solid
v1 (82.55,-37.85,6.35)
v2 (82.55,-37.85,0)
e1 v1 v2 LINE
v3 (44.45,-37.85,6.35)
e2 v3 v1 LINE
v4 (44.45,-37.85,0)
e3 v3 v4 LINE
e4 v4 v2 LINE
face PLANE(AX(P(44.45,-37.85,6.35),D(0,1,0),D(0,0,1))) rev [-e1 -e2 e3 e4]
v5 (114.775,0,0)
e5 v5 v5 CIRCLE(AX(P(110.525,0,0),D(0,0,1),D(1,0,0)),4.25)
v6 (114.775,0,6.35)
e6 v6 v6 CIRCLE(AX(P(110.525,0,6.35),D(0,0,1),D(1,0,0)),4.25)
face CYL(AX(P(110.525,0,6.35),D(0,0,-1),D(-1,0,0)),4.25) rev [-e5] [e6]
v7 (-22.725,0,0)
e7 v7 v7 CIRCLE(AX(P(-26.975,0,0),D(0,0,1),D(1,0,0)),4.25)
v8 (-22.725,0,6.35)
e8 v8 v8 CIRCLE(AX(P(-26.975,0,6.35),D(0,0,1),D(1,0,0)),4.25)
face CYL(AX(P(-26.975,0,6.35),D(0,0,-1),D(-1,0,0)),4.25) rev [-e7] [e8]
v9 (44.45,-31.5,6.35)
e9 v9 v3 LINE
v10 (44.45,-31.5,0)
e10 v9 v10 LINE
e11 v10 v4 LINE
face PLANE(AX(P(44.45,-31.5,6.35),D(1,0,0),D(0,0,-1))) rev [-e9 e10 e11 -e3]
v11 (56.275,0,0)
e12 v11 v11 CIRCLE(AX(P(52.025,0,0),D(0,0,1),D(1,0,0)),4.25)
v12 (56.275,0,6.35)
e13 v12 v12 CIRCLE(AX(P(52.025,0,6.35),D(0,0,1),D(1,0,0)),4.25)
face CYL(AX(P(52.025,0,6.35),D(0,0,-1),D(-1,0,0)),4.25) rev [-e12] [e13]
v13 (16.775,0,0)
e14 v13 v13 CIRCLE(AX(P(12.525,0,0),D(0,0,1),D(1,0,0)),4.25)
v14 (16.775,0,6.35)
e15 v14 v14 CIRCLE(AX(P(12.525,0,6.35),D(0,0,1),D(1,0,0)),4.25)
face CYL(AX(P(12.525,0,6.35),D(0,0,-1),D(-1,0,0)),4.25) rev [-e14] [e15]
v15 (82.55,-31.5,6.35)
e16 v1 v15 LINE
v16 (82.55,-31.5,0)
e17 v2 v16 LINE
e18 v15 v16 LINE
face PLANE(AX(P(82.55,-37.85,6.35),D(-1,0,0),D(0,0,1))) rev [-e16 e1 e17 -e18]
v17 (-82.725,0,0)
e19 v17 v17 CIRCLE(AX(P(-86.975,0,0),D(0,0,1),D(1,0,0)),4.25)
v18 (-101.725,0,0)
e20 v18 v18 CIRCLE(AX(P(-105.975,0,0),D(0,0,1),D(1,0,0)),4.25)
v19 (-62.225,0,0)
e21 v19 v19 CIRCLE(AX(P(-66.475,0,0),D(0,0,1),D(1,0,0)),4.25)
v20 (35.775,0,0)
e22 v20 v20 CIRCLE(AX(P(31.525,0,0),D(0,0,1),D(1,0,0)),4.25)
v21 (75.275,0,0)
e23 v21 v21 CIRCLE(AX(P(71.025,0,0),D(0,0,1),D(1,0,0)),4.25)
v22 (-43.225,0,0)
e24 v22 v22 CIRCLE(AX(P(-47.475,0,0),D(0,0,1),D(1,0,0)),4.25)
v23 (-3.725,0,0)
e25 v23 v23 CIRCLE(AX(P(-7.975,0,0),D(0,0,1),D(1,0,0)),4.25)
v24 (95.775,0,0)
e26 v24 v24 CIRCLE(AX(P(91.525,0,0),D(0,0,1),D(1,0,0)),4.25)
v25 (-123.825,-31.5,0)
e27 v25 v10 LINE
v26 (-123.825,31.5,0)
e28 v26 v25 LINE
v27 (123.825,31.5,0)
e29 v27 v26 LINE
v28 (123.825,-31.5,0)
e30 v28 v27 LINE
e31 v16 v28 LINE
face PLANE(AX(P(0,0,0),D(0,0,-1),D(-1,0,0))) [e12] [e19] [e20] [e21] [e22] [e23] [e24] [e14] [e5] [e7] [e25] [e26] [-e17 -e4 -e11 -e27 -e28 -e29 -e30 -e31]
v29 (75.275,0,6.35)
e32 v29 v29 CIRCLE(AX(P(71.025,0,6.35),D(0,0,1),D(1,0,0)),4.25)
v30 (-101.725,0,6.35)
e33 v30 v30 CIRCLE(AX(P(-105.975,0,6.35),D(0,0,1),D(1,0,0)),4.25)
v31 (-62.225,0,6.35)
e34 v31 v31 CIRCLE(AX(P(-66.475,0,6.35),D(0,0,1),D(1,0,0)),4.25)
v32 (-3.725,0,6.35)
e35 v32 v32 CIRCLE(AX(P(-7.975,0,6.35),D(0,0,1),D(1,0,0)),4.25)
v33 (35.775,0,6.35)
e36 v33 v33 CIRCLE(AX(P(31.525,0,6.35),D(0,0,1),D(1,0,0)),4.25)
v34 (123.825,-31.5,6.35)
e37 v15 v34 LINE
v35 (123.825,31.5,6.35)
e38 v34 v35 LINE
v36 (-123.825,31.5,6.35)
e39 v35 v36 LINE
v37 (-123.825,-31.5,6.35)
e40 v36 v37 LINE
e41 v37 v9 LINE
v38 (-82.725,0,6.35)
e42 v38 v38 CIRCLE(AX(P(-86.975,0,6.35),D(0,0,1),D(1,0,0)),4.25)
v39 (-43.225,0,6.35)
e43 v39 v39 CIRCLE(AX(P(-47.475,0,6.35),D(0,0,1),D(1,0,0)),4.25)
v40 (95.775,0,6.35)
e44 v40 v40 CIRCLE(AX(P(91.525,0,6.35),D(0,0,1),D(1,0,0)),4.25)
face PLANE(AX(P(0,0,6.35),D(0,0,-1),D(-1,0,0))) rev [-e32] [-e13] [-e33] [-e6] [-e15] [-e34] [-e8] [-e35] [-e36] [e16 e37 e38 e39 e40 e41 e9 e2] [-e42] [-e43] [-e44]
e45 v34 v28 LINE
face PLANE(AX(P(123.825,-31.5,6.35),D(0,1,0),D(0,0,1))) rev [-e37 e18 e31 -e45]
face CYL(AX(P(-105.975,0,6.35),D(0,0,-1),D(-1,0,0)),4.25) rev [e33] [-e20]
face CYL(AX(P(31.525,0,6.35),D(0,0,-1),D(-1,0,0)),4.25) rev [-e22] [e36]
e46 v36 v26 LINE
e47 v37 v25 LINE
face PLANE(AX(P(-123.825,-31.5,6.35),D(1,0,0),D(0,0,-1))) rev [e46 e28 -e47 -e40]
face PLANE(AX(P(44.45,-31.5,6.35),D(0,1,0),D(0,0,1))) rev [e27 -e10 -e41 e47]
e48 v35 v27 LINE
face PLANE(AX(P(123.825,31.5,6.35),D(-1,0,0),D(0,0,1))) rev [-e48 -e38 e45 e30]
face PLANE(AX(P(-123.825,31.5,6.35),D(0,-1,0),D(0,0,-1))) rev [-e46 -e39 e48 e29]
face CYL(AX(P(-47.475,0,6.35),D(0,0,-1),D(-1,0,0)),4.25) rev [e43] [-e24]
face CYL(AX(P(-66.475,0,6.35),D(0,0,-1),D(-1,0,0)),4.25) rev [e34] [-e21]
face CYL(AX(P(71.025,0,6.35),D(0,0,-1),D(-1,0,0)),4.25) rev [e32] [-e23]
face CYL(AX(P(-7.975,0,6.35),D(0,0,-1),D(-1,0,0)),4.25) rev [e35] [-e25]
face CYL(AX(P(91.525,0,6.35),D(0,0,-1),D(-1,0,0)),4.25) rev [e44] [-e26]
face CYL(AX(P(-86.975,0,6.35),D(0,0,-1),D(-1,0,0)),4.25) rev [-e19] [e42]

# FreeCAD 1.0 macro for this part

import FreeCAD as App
import Part
import Sketcher
from FreeCAD import Vector
Q = App.Units.Quantity


def add_polygon(sketch, points):
    """Adds a closed chain of lines whose ends are joined by coincident constraints."""
    first, n = sketch.GeometryCount, len(points)
    for a, b in zip(points, points[1:] + points[:1]):
        sketch.addGeometry(Part.LineSegment(App.Vector(*a, 0), App.Vector(*b, 0)), False)
    for i in range(n):
        sketch.addConstraint(Sketcher.Constraint("Coincident", first + i, 2, first + (i + 1) % n, 1))

doc = App.newDocument("Part")
params = doc.addObject("Spreadsheet::Sheet", "Params")
for row, (alias, value) in enumerate([
    ("sketch1_width", "1.5 in"),
    ("sketch1_width2", "9.75 in"),
    ("sketch1_height", "0.25 in"),
    ("sketch1_width3", "6.625 in"),
    ("pad1_length", "0.25 in"),
], start=1):
    params.set(f"A{row}", alias)
    params.set(f"B{row}", "=" + value)
    params.setAlias(f"B{row}", alias)

body = doc.addObject("PartDesign::Body", "Body")

# Sketch on XY plane
sketch1 = body.newObject("Sketcher::SketchObject", "Sketch")
sketch1.AttachmentSupport = (doc.getObject("XY_Plane"), [""])
sketch1.MapMode = "FlatFace"
add_polygon(sketch1, [(123.825, -31.5), (123.825, 31.5), (-123.825, 31.5), (-123.825, -31.5), (44.45, -31.5), (44.45, -37.85), (82.55, -37.85), (82.55, -31.5)])  # lines 0-7
sketch1.addGeometry(Part.Circle(Vector(110.525, 0, 0), Vector(0, 0, 1), 4.25), False)  # 8
sketch1.addGeometry(Part.Circle(Vector(91.525, 0, 0), Vector(0, 0, 1), 4.25), False)  # 9
sketch1.addGeometry(Part.Circle(Vector(71.025, 0, 0), Vector(0, 0, 1), 4.25), False)  # 10
sketch1.addGeometry(Part.Circle(Vector(52.025, 0, 0), Vector(0, 0, 1), 4.25), False)  # 11
sketch1.addGeometry(Part.Circle(Vector(31.525, 0, 0), Vector(0, 0, 1), 4.25), False)  # 12
sketch1.addGeometry(Part.Circle(Vector(12.525, 0, 0), Vector(0, 0, 1), 4.25), False)  # 13
sketch1.addGeometry(Part.Circle(Vector(-7.975, 0, 0), Vector(0, 0, 1), 4.25), False)  # 14
sketch1.addGeometry(Part.Circle(Vector(-26.975, 0, 0), Vector(0, 0, 1), 4.25), False)  # 15
sketch1.addGeometry(Part.Circle(Vector(-47.475, 0, 0), Vector(0, 0, 1), 4.25), False)  # 16
sketch1.addGeometry(Part.Circle(Vector(-66.475, 0, 0), Vector(0, 0, 1), 4.25), False)  # 17
sketch1.addGeometry(Part.Circle(Vector(-86.975, 0, 0), Vector(0, 0, 1), 4.25), False)  # 18
sketch1.addGeometry(Part.Circle(Vector(-105.975, 0, 0), Vector(0, 0, 1), 4.25), False)  # 19
sketch1.addConstraint(Sketcher.Constraint("Vertical", 0))
sketch1.addConstraint(Sketcher.Constraint("Horizontal", 1))
sketch1.addConstraint(Sketcher.Constraint("Vertical", 2))
sketch1.addConstraint(Sketcher.Constraint("Horizontal", 3))
sketch1.addConstraint(Sketcher.Constraint("Vertical", 4))
sketch1.addConstraint(Sketcher.Constraint("Horizontal", 5))
sketch1.addConstraint(Sketcher.Constraint("Vertical", 6))
sketch1.addConstraint(Sketcher.Constraint("Horizontal", 7))
sketch1.addConstraint(Sketcher.Constraint("Equal", 8, 9))
sketch1.addConstraint(Sketcher.Constraint("Equal", 9, 10))
sketch1.addConstraint(Sketcher.Constraint("Equal", 10, 11))
sketch1.addConstraint(Sketcher.Constraint("Equal", 11, 12))
sketch1.addConstraint(Sketcher.Constraint("Equal", 12, 13))
sketch1.addConstraint(Sketcher.Constraint("Equal", 13, 14))
sketch1.addConstraint(Sketcher.Constraint("Equal", 14, 15))
sketch1.addConstraint(Sketcher.Constraint("Equal", 15, 16))
sketch1.addConstraint(Sketcher.Constraint("Equal", 16, 17))
sketch1.addConstraint(Sketcher.Constraint("Equal", 17, 18))
sketch1.addConstraint(Sketcher.Constraint("Equal", 18, 19))
sketch1.addConstraint(Sketcher.Constraint("Symmetric", 0, 2, 2, 2, -1, 1))
sketch1.addConstraint(Sketcher.Constraint("PointOnObject", 8, 3, -1))
sketch1.addConstraint(Sketcher.Constraint("PointOnObject", 9, 3, -1))
sketch1.addConstraint(Sketcher.Constraint("PointOnObject", 10, 3, -1))
sketch1.addConstraint(Sketcher.Constraint("PointOnObject", 11, 3, -1))
sketch1.addConstraint(Sketcher.Constraint("PointOnObject", 12, 3, -1))
sketch1.addConstraint(Sketcher.Constraint("PointOnObject", 13, 3, -1))
sketch1.addConstraint(Sketcher.Constraint("PointOnObject", 14, 3, -1))
sketch1.addConstraint(Sketcher.Constraint("PointOnObject", 15, 3, -1))
sketch1.addConstraint(Sketcher.Constraint("PointOnObject", 16, 3, -1))
sketch1.addConstraint(Sketcher.Constraint("PointOnObject", 17, 3, -1))
sketch1.addConstraint(Sketcher.Constraint("PointOnObject", 18, 3, -1))
sketch1.addConstraint(Sketcher.Constraint("PointOnObject", 19, 3, -1))
sketch1.addConstraint(Sketcher.Constraint("Horizontal", 3, 2, 6, 2))
sketch1.addConstraint(Sketcher.Constraint("DistanceX", 5, 1, 5, 2, Q("1.5 in")))
sketch1.addConstraint(Sketcher.Constraint("DistanceX", 1, 2, 1, 1, Q("9.75 in")))
sketch1.addConstraint(Sketcher.Constraint("DistanceY", 4, 2, 4, 1, Q("0.25 in")))
sketch1.addConstraint(Sketcher.Constraint("Diameter", 8, 8.5))
sketch1.addConstraint(Sketcher.Constraint("DistanceX", 3, 1, 3, 2, Q("6.625 in")))
sketch1.addConstraint(Sketcher.Constraint("DistanceY", 0, 1, 0, 2, 63.0))
sketch1.addConstraint(Sketcher.Constraint("DistanceX", -1, 1, 8, 3, 110.525))
sketch1.addConstraint(Sketcher.Constraint("DistanceX", -1, 1, 9, 3, 91.525))
sketch1.addConstraint(Sketcher.Constraint("DistanceX", -1, 1, 10, 3, 71.025))
sketch1.addConstraint(Sketcher.Constraint("DistanceX", -1, 1, 11, 3, 52.025))
sketch1.addConstraint(Sketcher.Constraint("DistanceX", -1, 1, 12, 3, 31.525))
sketch1.addConstraint(Sketcher.Constraint("DistanceX", -1, 1, 13, 3, 12.525))
sketch1.addConstraint(Sketcher.Constraint("DistanceX", 14, 3, -1, 1, 7.975))
sketch1.addConstraint(Sketcher.Constraint("DistanceX", 15, 3, -1, 1, 26.975))
sketch1.addConstraint(Sketcher.Constraint("DistanceX", 16, 3, -1, 1, 47.475))
sketch1.addConstraint(Sketcher.Constraint("DistanceX", 17, 3, -1, 1, 66.475))
sketch1.addConstraint(Sketcher.Constraint("DistanceX", 18, 3, -1, 1, 86.975))
sketch1.addConstraint(Sketcher.Constraint("DistanceX", 19, 3, -1, 1, 105.975))
sketch1.setExpression("Constraints[41]", "Params.sketch1_width")
sketch1.setExpression("Constraints[42]", "Params.sketch1_width2")
sketch1.setExpression("Constraints[43]", "Params.sketch1_height")
sketch1.setExpression("Constraints[45]", "Params.sketch1_width3")
pad1 = body.newObject("PartDesign::Pad", "Pad")
pad1.Profile = sketch1
pad1.setExpression("Length", "Params.pad1_length")

doc.recompute()
